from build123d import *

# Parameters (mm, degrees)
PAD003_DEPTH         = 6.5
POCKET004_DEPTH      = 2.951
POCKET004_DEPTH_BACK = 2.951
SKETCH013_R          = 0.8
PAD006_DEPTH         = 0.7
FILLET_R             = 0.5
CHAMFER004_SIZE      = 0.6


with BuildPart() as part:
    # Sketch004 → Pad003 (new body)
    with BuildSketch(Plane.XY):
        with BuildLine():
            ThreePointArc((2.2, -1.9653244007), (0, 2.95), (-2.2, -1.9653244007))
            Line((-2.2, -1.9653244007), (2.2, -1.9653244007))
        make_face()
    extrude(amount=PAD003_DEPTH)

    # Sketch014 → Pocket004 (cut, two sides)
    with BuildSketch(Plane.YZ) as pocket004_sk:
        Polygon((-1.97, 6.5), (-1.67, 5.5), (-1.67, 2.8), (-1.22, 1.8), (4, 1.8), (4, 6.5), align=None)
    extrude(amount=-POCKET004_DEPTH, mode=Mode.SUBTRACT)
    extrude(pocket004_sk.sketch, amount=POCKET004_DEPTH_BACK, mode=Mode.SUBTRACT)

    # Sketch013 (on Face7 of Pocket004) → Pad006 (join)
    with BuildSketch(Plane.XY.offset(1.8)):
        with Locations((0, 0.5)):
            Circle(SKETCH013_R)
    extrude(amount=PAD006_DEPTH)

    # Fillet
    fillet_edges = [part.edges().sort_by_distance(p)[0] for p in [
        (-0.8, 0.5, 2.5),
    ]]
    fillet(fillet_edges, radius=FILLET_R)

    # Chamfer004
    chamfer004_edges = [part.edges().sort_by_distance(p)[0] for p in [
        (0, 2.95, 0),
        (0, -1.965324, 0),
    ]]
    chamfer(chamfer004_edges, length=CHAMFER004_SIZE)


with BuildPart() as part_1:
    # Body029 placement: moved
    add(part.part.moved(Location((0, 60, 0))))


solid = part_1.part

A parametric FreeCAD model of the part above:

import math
import FreeCAD as App
import Part
import Sketcher


def edges_at(feature, points):
    """Names of the edges that pass closest to the given points."""
    edges = feature.Shape.Edges
    near = lambda p: min(range(len(edges)), key=lambda i: edges[i].distToShape(Part.Vertex(*p))[0])
    return sorted({f"Edge{near(p) + 1}" for p in points})

doc = App.newDocument("Part")
body = doc.addObject("PartDesign::Body", "Body")

# Sketch on XY plane
sketch1 = body.newObject("Sketcher::SketchObject", "Sketch")
sketch1.AttachmentSupport = (doc.getObject("XY_Plane"), [""])
sketch1.MapMode = "FlatFace"
sketch1.addGeometry(Part.ArcOfCircle(Part.Circle(App.Vector(0, 0, 0), App.Vector(0, 0, 1), 2.95), math.radians(-41.775348), math.radians(221.775348)), False)
sketch1.addGeometry(Part.LineSegment(App.Vector(-2.2, -1.965324, 0), App.Vector(2.2, -1.965324, 0)), False)
sketch1.addConstraint(Sketcher.Constraint("Coincident", 0, 1, 1, 2))
sketch1.addConstraint(Sketcher.Constraint("Coincident", 1, 1, 0, 2))
sketch1.addConstraint(Sketcher.Constraint("Horizontal", 1))
sketch1.addConstraint(Sketcher.Constraint("Coincident", 0, 3, -1, 1))
sketch1.addConstraint(Sketcher.Constraint("Radius", 0, 2.95))
sketch1.addConstraint(Sketcher.Constraint("DistanceX", 1, 1, 1, 2, 4.4))
pad1 = body.newObject("PartDesign::Pad", "Pad")
pad1.Profile = sketch1
pad1.Length = 6.5

# Sketch on YZ plane
sketch2 = body.newObject("Sketcher::SketchObject", "Sketch001")
sketch2.AttachmentSupport = (doc.getObject("YZ_Plane"), [""])
sketch2.MapMode = "FlatFace"
sketch2.addGeometry(Part.LineSegment(App.Vector(-1.97, 6.5, 0), App.Vector(-1.67, 5.5, 0)), False)
sketch2.addGeometry(Part.LineSegment(App.Vector(-1.67, 5.5, 0), App.Vector(-1.67, 2.8, 0)), False)
sketch2.addGeometry(Part.LineSegment(App.Vector(-1.67, 2.8, 0), App.Vector(-1.22, 1.8, 0)), False)
sketch2.addGeometry(Part.LineSegment(App.Vector(-1.22, 1.8, 0), App.Vector(4, 1.8, 0)), False)
sketch2.addGeometry(Part.LineSegment(App.Vector(4, 1.8, 0), App.Vector(4, 6.5, 0)), False)
sketch2.addGeometry(Part.LineSegment(App.Vector(4, 6.5, 0), App.Vector(-1.97, 6.5, 0)), False)
sketch2.addConstraint(Sketcher.Constraint("Coincident", 0, 2, 1, 1))
sketch2.addConstraint(Sketcher.Constraint("Coincident", 1, 2, 2, 1))
sketch2.addConstraint(Sketcher.Constraint("Coincident", 2, 2, 3, 1))
sketch2.addConstraint(Sketcher.Constraint("Coincident", 3, 2, 4, 1))
sketch2.addConstraint(Sketcher.Constraint("Coincident", 4, 2, 5, 1))
sketch2.addConstraint(Sketcher.Constraint("Coincident", 5, 2, 0, 1))
sketch2.addConstraint(Sketcher.Constraint("Vertical", 1))
sketch2.addConstraint(Sketcher.Constraint("Horizontal", 3))
sketch2.addConstraint(Sketcher.Constraint("Vertical", 4))
sketch2.addConstraint(Sketcher.Constraint("Horizontal", 5))
sketch2.addConstraint(Sketcher.Constraint("DistanceY", 1, 2, 1, 1, 2.7))
sketch2.addConstraint(Sketcher.Constraint("DistanceY", 4, 1, 4, 2, 4.7))
sketch2.addConstraint(Sketcher.Constraint("DistanceX", -1, 1, 3, 2, 4.0))
sketch2.addConstraint(Sketcher.Constraint("DistanceY", 2, 2, 1, 2, 1.0))
sketch2.addConstraint(Sketcher.Constraint("DistanceX", 3, 1, 3, 2, 5.22))
sketch2.addConstraint(Sketcher.Constraint("DistanceX", 5, 2, 5, 1, 5.97))
sketch2.addConstraint(Sketcher.Constraint("DistanceY", -1, 1, 0, 2, 5.5))
sketch2.addConstraint(Sketcher.Constraint("DistanceX", 5, 2, 0, 2, 0.3))
pocket1 = body.newObject("PartDesign::Pocket", "Pocket")
pocket1.Profile = sketch2
pocket1.Type = "ThroughAll"
pocket1.Midplane = True

# Sketch on XY plane
sketch3 = body.newObject("Sketcher::SketchObject", "Sketch002")
sketch3.AttachmentSupport = (doc.getObject("XY_Plane"), [""])
sketch3.MapMode = "FlatFace"
sketch3.AttachmentOffset = App.Placement(App.Vector(0, 0, 1.8), App.Rotation())
sketch3.addGeometry(Part.Circle(App.Vector(0, 0.5, 0), App.Vector(0, 0, 1), 0.8), False)
sketch3.addConstraint(Sketcher.Constraint("PointOnObject", 0, 3, -2))
sketch3.addConstraint(Sketcher.Constraint("Diameter", 0, 1.6))
sketch3.addConstraint(Sketcher.Constraint("DistanceY", -1, 1, 0, 3, 0.5))
pad2 = body.newObject("PartDesign::Pad", "Pad001")
pad2.Profile = sketch3
pad2.Length = 0.7
doc.recompute()

fillet = body.newObject("PartDesign::Fillet", "Fillet")
fillet.Base = (pad2, edges_at(pad2, [(-0.8, 0.5, 2.5)]))
fillet.Radius = 0.5
doc.recompute()

chamfer = body.newObject("PartDesign::Chamfer", "Chamfer")
chamfer.Base = (fillet, edges_at(fillet, [(0, 2.95, 0), (0, -1.965, 0)]))
chamfer.Size = 0.6
body2 = doc.addObject("PartDesign::Body", "Body001")
doc.recompute()

body.Placement = App.Placement(App.Vector(0, 60, 0), App.Rotation(App.Vector(0, 0, 1), 0))
boolean = body2.newObject("PartDesign::Boolean", "Boolean")
boolean.Type = "Fuse"
boolean.addObjects([body])

doc.recompute()
